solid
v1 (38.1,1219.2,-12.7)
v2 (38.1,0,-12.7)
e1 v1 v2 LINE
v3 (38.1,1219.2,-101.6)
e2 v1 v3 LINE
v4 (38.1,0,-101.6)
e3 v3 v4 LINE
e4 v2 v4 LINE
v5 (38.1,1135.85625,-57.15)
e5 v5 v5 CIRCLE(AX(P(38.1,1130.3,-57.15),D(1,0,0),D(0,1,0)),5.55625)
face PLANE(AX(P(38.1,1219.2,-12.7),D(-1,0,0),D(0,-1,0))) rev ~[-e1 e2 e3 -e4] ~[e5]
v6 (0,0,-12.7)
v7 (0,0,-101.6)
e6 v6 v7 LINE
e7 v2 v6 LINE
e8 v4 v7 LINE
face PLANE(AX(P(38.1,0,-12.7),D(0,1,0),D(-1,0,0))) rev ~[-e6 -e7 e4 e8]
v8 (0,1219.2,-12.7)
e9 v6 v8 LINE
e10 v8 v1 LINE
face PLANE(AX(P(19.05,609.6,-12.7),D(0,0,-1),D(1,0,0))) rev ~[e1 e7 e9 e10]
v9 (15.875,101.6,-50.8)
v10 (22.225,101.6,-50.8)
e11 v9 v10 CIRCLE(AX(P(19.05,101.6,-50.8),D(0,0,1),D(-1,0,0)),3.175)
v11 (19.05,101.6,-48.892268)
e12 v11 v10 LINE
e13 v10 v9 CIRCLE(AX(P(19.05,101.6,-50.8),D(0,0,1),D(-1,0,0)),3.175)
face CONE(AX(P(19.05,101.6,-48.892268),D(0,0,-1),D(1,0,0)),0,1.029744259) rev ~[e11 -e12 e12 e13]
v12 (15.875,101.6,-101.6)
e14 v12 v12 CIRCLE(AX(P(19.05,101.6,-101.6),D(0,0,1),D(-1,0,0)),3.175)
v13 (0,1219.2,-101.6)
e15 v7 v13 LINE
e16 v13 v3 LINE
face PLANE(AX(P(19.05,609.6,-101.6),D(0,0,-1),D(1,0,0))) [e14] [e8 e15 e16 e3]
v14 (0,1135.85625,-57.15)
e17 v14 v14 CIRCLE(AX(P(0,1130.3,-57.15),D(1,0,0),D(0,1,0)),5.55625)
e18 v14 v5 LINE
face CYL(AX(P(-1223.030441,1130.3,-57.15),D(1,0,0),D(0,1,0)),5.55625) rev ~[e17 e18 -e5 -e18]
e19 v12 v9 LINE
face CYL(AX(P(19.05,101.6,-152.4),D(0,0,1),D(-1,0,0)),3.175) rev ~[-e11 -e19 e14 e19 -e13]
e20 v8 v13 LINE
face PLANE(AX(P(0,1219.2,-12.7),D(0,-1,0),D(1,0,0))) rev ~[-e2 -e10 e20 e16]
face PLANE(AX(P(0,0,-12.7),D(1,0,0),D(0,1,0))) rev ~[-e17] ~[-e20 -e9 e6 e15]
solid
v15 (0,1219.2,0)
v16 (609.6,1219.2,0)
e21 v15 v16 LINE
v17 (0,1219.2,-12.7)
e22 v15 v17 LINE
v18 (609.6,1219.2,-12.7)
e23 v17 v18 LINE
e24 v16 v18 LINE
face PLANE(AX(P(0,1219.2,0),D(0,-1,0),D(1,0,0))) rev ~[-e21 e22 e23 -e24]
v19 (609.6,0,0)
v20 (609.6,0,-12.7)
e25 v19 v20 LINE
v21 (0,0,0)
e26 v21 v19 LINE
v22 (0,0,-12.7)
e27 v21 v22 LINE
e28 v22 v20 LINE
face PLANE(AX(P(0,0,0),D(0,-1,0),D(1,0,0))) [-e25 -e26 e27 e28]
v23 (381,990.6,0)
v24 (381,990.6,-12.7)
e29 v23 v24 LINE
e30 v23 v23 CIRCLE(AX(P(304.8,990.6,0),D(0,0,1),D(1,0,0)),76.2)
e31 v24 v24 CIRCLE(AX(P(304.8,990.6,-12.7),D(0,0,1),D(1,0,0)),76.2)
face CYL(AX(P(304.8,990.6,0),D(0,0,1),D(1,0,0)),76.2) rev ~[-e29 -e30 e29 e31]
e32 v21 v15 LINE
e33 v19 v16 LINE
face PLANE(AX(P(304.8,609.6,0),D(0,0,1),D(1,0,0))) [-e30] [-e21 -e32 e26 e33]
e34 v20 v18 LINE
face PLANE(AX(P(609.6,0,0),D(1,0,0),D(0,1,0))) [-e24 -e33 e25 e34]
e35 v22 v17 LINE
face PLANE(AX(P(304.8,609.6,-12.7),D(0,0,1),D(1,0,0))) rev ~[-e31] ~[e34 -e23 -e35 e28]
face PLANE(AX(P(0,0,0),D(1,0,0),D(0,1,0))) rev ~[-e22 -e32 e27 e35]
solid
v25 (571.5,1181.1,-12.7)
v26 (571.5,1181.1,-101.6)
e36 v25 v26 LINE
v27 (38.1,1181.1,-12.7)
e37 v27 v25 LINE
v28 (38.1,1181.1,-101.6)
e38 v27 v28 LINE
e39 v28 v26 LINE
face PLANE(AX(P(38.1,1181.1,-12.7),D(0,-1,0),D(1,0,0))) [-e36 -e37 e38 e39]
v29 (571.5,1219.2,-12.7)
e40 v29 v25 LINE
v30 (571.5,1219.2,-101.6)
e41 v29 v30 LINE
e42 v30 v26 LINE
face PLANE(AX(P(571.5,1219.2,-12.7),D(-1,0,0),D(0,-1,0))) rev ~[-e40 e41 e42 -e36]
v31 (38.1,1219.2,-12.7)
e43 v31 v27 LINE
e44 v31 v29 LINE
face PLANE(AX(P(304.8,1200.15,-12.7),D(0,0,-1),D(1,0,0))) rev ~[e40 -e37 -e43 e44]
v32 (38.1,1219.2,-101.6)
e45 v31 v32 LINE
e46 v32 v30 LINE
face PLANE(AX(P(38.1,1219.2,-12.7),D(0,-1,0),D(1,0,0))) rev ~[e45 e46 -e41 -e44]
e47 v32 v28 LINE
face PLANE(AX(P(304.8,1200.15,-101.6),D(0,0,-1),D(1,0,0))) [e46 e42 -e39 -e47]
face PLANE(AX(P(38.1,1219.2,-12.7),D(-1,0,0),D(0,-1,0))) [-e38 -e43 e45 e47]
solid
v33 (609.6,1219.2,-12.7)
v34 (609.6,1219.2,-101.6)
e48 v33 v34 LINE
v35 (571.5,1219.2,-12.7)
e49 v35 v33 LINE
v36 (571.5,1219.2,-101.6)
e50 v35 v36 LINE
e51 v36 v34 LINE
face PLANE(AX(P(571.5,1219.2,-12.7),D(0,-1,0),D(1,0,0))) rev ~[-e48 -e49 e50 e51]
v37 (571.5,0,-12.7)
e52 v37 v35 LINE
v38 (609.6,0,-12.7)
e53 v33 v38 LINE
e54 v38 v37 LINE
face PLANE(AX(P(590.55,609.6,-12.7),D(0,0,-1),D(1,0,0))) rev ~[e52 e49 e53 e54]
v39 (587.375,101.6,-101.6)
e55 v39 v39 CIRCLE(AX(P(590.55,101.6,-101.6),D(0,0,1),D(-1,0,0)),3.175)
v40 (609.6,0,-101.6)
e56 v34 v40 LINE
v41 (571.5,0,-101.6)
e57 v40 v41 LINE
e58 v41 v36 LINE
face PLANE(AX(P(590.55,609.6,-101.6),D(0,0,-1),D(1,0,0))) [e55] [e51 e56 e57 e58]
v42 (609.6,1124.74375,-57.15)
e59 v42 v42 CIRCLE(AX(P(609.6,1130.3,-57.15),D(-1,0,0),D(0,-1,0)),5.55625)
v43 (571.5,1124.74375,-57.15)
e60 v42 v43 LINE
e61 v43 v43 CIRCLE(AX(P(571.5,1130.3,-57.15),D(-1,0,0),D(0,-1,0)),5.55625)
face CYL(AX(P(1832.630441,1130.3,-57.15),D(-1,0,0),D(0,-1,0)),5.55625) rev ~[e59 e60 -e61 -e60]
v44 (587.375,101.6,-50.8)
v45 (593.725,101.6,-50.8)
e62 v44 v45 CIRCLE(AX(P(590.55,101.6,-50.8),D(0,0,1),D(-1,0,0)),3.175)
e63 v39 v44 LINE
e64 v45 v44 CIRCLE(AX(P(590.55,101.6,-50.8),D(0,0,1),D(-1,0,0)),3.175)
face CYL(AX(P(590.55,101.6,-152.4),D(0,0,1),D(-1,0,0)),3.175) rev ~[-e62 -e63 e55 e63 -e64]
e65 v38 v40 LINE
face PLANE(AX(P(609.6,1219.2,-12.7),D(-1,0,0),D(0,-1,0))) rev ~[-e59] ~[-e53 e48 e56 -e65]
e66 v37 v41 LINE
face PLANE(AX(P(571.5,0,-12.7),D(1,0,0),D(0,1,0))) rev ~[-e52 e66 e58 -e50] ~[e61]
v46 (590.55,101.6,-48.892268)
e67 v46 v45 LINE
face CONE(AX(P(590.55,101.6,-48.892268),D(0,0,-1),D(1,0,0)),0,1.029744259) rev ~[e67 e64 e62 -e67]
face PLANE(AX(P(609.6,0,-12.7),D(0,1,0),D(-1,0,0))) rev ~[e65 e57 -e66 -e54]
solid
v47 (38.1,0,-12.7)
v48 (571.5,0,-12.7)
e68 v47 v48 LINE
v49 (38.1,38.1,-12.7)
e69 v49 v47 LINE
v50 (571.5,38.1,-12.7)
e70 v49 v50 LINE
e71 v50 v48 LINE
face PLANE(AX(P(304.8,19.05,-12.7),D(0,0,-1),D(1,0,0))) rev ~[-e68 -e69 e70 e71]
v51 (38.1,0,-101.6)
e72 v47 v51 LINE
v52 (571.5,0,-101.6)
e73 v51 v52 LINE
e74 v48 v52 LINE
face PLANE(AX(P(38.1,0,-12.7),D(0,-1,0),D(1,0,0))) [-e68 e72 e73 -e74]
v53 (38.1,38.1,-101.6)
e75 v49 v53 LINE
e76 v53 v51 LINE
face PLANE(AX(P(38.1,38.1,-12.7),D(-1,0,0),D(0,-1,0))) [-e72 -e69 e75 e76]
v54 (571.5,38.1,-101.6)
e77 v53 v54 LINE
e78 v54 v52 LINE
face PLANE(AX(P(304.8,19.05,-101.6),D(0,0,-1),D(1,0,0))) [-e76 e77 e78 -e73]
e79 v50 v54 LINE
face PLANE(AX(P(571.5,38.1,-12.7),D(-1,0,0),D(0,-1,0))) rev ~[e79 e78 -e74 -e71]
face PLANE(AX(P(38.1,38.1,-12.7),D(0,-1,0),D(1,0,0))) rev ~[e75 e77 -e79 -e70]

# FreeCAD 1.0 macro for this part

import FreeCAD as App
import Part
import Sketcher
from FreeCAD import Vector
Q = App.Units.Quantity

doc = App.newDocument("Part")
body = doc.addObject("PartDesign::Body", "Body")

# Sketch on XY plane
sketch1 = doc.addObject("Sketcher::SketchObject", "Sketch")
body.addObject(sketch1)
sketch1.AttachmentSupport = (doc.XY_Plane, [""])
sketch1.MapMode = "FlatFace"
sketch1.addGeometry(Part.LineSegment(Vector(0, 1219, 0), Vector(0, 0, 0)), False)
sketch1.addGeometry(Part.LineSegment(Vector(0, 0, 0), Vector(610, 0, 0)), False)
sketch1.addGeometry(Part.LineSegment(Vector(610, 0, 0), Vector(610, 1219, 0)), False)
sketch1.addGeometry(Part.LineSegment(Vector(610, 1219, 0), Vector(0, 1219, 0)), False)
sketch1.addGeometry(Part.Circle(Vector(305, 991, 0), Vector(0, 0, 1), 76), False)
sketch1.addConstraint(Sketcher.Constraint("Coincident", 0, 2, 1, 1))
sketch1.addConstraint(Sketcher.Constraint("Coincident", 1, 2, 2, 1))
sketch1.addConstraint(Sketcher.Constraint("Coincident", 2, 2, 3, 1))
sketch1.addConstraint(Sketcher.Constraint("Coincident", 3, 2, 0, 1))
sketch1.addConstraint(Sketcher.Constraint("Vertical", 0))
sketch1.addConstraint(Sketcher.Constraint("Horizontal", 1))
sketch1.addConstraint(Sketcher.Constraint("Vertical", 2))
sketch1.addConstraint(Sketcher.Constraint("Horizontal", 3))
sketch1.addConstraint(Sketcher.Constraint("Coincident", 0, 2, -1, 1))
sketch1.addConstraint(Sketcher.Constraint("Diameter", 4, Q("6 in")))
sketch1.addConstraint(Sketcher.Constraint("DistanceX", 1, 1, 1, 2, Q("24 in")))
sketch1.addConstraint(Sketcher.Constraint("DistanceY", 0, 2, 0, 1, Q("48 in")))
sketch1.addConstraint(Sketcher.Constraint("DistanceX", -1, 1, 4, 3, Q("12 in")))
sketch1.addConstraint(Sketcher.Constraint("DistanceY", -1, 1, 4, 3, Q("39 in")))
pad1 = doc.addObject("PartDesign::Pad", "Pad")
body.addObject(pad1)
pad1.Profile = sketch1
pad1.Length = Q("0.5 in")
pad1.Reversed = True
body2 = doc.addObject("PartDesign::Body", "Body001")

# Sketch on XY plane
sketch2 = doc.addObject("Sketcher::SketchObject", "Sketch001")
body2.addObject(sketch2)
sketch2.AttachmentSupport = (doc.getObject("XY_Plane001"), [""])
sketch2.MapMode = "FlatFace"
sketch2.AttachmentOffset = App.Placement(Vector(0, 0, -0.5 * 25.4), App.Rotation())
sketch2.addGeometry(Part.LineSegment(Vector(0, 0, 0), Vector(0, 1219, 0)), False)
sketch2.addGeometry(Part.LineSegment(Vector(0, 1219, 0), Vector(38, 1219, 0)), False)
sketch2.addGeometry(Part.LineSegment(Vector(38, 1219, 0), Vector(38, 0, 0)), False)
sketch2.addGeometry(Part.LineSegment(Vector(38, 0, 0), Vector(0, 0, 0)), False)
sketch2.addConstraint(Sketcher.Constraint("Coincident", 0, 2, 1, 1))
sketch2.addConstraint(Sketcher.Constraint("Coincident", 1, 2, 2, 1))
sketch2.addConstraint(Sketcher.Constraint("Coincident", 2, 2, 3, 1))
sketch2.addConstraint(Sketcher.Constraint("Coincident", 3, 2, 0, 1))
sketch2.addConstraint(Sketcher.Constraint("Vertical", 0))
sketch2.addConstraint(Sketcher.Constraint("Horizontal", 1))
sketch2.addConstraint(Sketcher.Constraint("Vertical", 2))
sketch2.addConstraint(Sketcher.Constraint("Horizontal", 3))
sketch2.addConstraint(Sketcher.Constraint("Coincident", 3, 2, -1, 1))
sketch2.addConstraint(Sketcher.Constraint("DistanceY", 0, 1, 0, 2, Q("48 in")))
sketch2.addConstraint(Sketcher.Constraint("DistanceX", 1, 1, 1, 2, Q("1.5 in")))
pad2 = doc.addObject("PartDesign::Pad", "Pad001")
body2.addObject(pad2)
pad2.Profile = sketch2
pad2.Length = Q("3.5 in")
pad2.Reversed = True

# Sketch on YZ plane
sketch3 = doc.addObject("Sketcher::SketchObject", "Sketch002")
body2.addObject(sketch3)
sketch3.AttachmentSupport = (doc.getObject("YZ_Plane001"), [""])
sketch3.MapMode = "FlatFace"
sketch3.addGeometry(Part.Circle(Vector(1130, -57, 0), Vector(0, 0, 1), 6), False)
sketch3.addConstraint(Sketcher.Constraint("Diameter", 0, Q("0.4375 in")))
sketch3.addConstraint(Sketcher.Constraint("DistanceX", -1, 1, 0, 3, Q("44.5 in")))
sketch3.addConstraint(Sketcher.Constraint("DistanceY", 0, 3, -1, 1, Q("2.25 in")))
doc.recompute()
hole = doc.addObject("PartDesign::Hole", "Hole")
body2.addObject(hole)
hole.Profile = sketch3
hole.ThreadType = "None"
hole.Diameter = Q("0.4375 in")
hole.DepthType = "ThroughAll"
hole.Reversed = True

# Sketch on XY plane
sketch4 = doc.addObject("Sketcher::SketchObject", "Sketch003")
body2.addObject(sketch4)
sketch4.AttachmentSupport = (doc.getObject("XY_Plane001"), [""])
sketch4.MapMode = "FlatFace"
sketch4.AttachmentOffset = App.Placement(Vector(0, 0, -4 * 25.4), App.Rotation())
sketch4.addGeometry(Part.Circle(Vector(19.1, 101.6, 0), Vector(0, 0, 1), 3.2), False)
sketch4.addConstraint(Sketcher.Constraint("Diameter", 0, Q("0.25 in")))
sketch4.addConstraint(Sketcher.Constraint("DistanceY", -1, 1, 0, 3, Q("4 in")))
sketch4.addConstraint(Sketcher.Constraint("DistanceX", -1, 1, 0, 3, Q("0.75 in")))
doc.recompute()
hole2 = doc.addObject("PartDesign::Hole", "Hole001")
body2.addObject(hole2)
hole2.Profile = sketch4
hole2.ThreadType = "None"
hole2.Diameter = Q("0.25 in")
hole2.DepthType = "Dimension"
hole2.Depth = Q("2 in")
hole2.DrillPoint = "Angled"
hole2.DrillPointAngle = 118
hole2.Reversed = True
body3 = doc.addObject("PartDesign::Body", "Body002")

# Sketch on XY plane
sketch5 = doc.addObject("Sketcher::SketchObject", "Sketch004")
body3.addObject(sketch5)
sketch5.AttachmentSupport = (doc.getObject("XY_Plane002"), [""])
sketch5.MapMode = "FlatFace"
sketch5.AttachmentOffset = App.Placement(Vector(0, 0, -0.5 * 25.4), App.Rotation())
sketch5.addGeometry(Part.LineSegment(Vector(572, 1219, 0), Vector(610, 1219, 0)), False)
sketch5.addGeometry(Part.LineSegment(Vector(610, 1219, 0), Vector(610, 0, 0)), False)
sketch5.addGeometry(Part.LineSegment(Vector(610, 0, 0), Vector(572, 0, 0)), False)
sketch5.addGeometry(Part.LineSegment(Vector(572, 0, 0), Vector(572, 1219, 0)), False)
sketch5.addConstraint(Sketcher.Constraint("Coincident", 0, 2, 1, 1))
sketch5.addConstraint(Sketcher.Constraint("Coincident", 1, 2, 2, 1))
sketch5.addConstraint(Sketcher.Constraint("Coincident", 2, 2, 3, 1))
sketch5.addConstraint(Sketcher.Constraint("Coincident", 3, 2, 0, 1))
sketch5.addConstraint(Sketcher.Constraint("Horizontal", 0))
sketch5.addConstraint(Sketcher.Constraint("Vertical", 1))
sketch5.addConstraint(Sketcher.Constraint("Horizontal", 2))
sketch5.addConstraint(Sketcher.Constraint("Vertical", 3))
sketch5.addConstraint(Sketcher.Constraint("PointOnObject", 1, 2, -1))
sketch5.addConstraint(Sketcher.Constraint("DistanceY", 1, 2, 1, 1, Q("48 in")))
sketch5.addConstraint(Sketcher.Constraint("DistanceX", 0, 1, 0, 2, Q("1.5 in")))
sketch5.addConstraint(Sketcher.Constraint("DistanceX", -1, 1, 0, 2, Q("24 in")))
pad3 = doc.addObject("PartDesign::Pad", "Pad002")
body3.addObject(pad3)
pad3.Profile = sketch5
pad3.Length = Q("3.5 in")
pad3.Reversed = True

# Sketch on YZ plane
sketch6 = doc.addObject("Sketcher::SketchObject", "Sketch005")
body3.addObject(sketch6)
sketch6.AttachmentSupport = (doc.getObject("YZ_Plane002"), [""])
sketch6.MapMode = "FlatFace"
sketch6.AttachmentOffset = App.Placement(Vector(0, 0, 24 * 25.4), App.Rotation())
sketch6.addGeometry(Part.Circle(Vector(1130, -57, 0), Vector(0, 0, 1), 6), False)
sketch6.addConstraint(Sketcher.Constraint("Diameter", 0, Q("0.4375 in")))
sketch6.addConstraint(Sketcher.Constraint("DistanceX", -1, 1, 0, 3, Q("44.5 in")))
sketch6.addConstraint(Sketcher.Constraint("DistanceY", 0, 3, -1, 1, Q("2.25 in")))
doc.recompute()
hole3 = doc.addObject("PartDesign::Hole", "Hole002")
body3.addObject(hole3)
hole3.Profile = sketch6
hole3.ThreadType = "None"
hole3.Diameter = Q("0.4375 in")
hole3.DepthType = "ThroughAll"

# Sketch on XY plane
sketch7 = doc.addObject("Sketcher::SketchObject", "Sketch006")
body3.addObject(sketch7)
sketch7.AttachmentSupport = (doc.getObject("XY_Plane002"), [""])
sketch7.MapMode = "FlatFace"
sketch7.AttachmentOffset = App.Placement(Vector(0, 0, -4 * 25.4), App.Rotation())
sketch7.addGeometry(Part.Circle(Vector(590.5, 101.6, 0), Vector(0, 0, 1), 3.2), False)
sketch7.addConstraint(Sketcher.Constraint("Diameter", 0, Q("0.25 in")))
sketch7.addConstraint(Sketcher.Constraint("DistanceY", -1, 1, 0, 3, Q("4 in")))
sketch7.addConstraint(Sketcher.Constraint("DistanceX", -1, 1, 0, 3, Q("23.25 in")))
doc.recompute()
hole4 = doc.addObject("PartDesign::Hole", "Hole003")
body3.addObject(hole4)
hole4.Profile = sketch7
hole4.ThreadType = "None"
hole4.Diameter = Q("0.25 in")
hole4.DepthType = "Dimension"
hole4.Depth = Q("2 in")
hole4.DrillPoint = "Angled"
hole4.DrillPointAngle = 118
hole4.Reversed = True
body4 = doc.addObject("PartDesign::Body", "Body003")

# Sketch on XY plane
sketch8 = doc.addObject("Sketcher::SketchObject", "Sketch007")
body4.addObject(sketch8)
sketch8.AttachmentSupport = (doc.getObject("XY_Plane003"), [""])
sketch8.MapMode = "FlatFace"
sketch8.AttachmentOffset = App.Placement(Vector(0, 0, -0.5 * 25.4), App.Rotation())
sketch8.addGeometry(Part.LineSegment(Vector(38, 0, 0), Vector(38, 38, 0)), False)
sketch8.addGeometry(Part.LineSegment(Vector(38, 38, 0), Vector(572, 38, 0)), False)
sketch8.addGeometry(Part.LineSegment(Vector(572, 38, 0), Vector(572, 0, 0)), False)
sketch8.addGeometry(Part.LineSegment(Vector(572, 0, 0), Vector(38, 0, 0)), False)
sketch8.addConstraint(Sketcher.Constraint("Coincident", 0, 2, 1, 1))
sketch8.addConstraint(Sketcher.Constraint("Coincident", 1, 2, 2, 1))
sketch8.addConstraint(Sketcher.Constraint("Coincident", 2, 2, 3, 1))
sketch8.addConstraint(Sketcher.Constraint("Coincident", 3, 2, 0, 1))
sketch8.addConstraint(Sketcher.Constraint("Vertical", 0))
sketch8.addConstraint(Sketcher.Constraint("Horizontal", 1))
sketch8.addConstraint(Sketcher.Constraint("Vertical", 2))
sketch8.addConstraint(Sketcher.Constraint("Horizontal", 3))
sketch8.addConstraint(Sketcher.Constraint("PointOnObject", 2, 2, -1))
sketch8.addConstraint(Sketcher.Constraint("DistanceX", 1, 1, 1, 2, Q("21 in")))
sketch8.addConstraint(Sketcher.Constraint("DistanceY", 0, 1, 0, 2, Q("1.5 in")))
sketch8.addConstraint(Sketcher.Constraint("DistanceX", -1, 1, 0, 2, Q("1.5 in")))
pad4 = doc.addObject("PartDesign::Pad", "Pad003")
body4.addObject(pad4)
pad4.Profile = sketch8
pad4.Length = Q("3.5 in")
pad4.Reversed = True
body5 = doc.addObject("PartDesign::Body", "Body004")

# Sketch on XY plane
sketch9 = doc.addObject("Sketcher::SketchObject", "Sketch008")
body5.addObject(sketch9)
sketch9.AttachmentSupport = (doc.getObject("XY_Plane004"), [""])
sketch9.MapMode = "FlatFace"
sketch9.AttachmentOffset = App.Placement(Vector(0, 0, -0.5 * 25.4), App.Rotation())
sketch9.addGeometry(Part.LineSegment(Vector(38, 1181, 0), Vector(38, 1219, 0)), False)
sketch9.addGeometry(Part.LineSegment(Vector(38, 1219, 0), Vector(572, 1219, 0)), False)
sketch9.addGeometry(Part.LineSegment(Vector(572, 1219, 0), Vector(572, 1181, 0)), False)
sketch9.addGeometry(Part.LineSegment(Vector(572, 1181, 0), Vector(38, 1181, 0)), False)
sketch9.addConstraint(Sketcher.Constraint("Coincident", 0, 2, 1, 1))
sketch9.addConstraint(Sketcher.Constraint("Coincident", 1, 2, 2, 1))
sketch9.addConstraint(Sketcher.Constraint("Coincident", 2, 2, 3, 1))
sketch9.addConstraint(Sketcher.Constraint("Coincident", 3, 2, 0, 1))
sketch9.addConstraint(Sketcher.Constraint("Vertical", 0))
sketch9.addConstraint(Sketcher.Constraint("Horizontal", 1))
sketch9.addConstraint(Sketcher.Constraint("Vertical", 2))
sketch9.addConstraint(Sketcher.Constraint("Horizontal", 3))
sketch9.addConstraint(Sketcher.Constraint("DistanceX", 1, 1, 1, 2, Q("21 in")))
sketch9.addConstraint(Sketcher.Constraint("DistanceY", 0, 1, 0, 2, Q("1.5 in")))
sketch9.addConstraint(Sketcher.Constraint("DistanceY", -1, 1, 0, 2, Q("48 in")))
sketch9.addConstraint(Sketcher.Constraint("DistanceX", -1, 1, 0, 2, Q("1.5 in")))
pad5 = doc.addObject("PartDesign::Pad", "Pad004")
body5.addObject(pad5)
pad5.Profile = sketch9
pad5.Length = Q("3.5 in")
pad5.Reversed = True

doc.recompute()
